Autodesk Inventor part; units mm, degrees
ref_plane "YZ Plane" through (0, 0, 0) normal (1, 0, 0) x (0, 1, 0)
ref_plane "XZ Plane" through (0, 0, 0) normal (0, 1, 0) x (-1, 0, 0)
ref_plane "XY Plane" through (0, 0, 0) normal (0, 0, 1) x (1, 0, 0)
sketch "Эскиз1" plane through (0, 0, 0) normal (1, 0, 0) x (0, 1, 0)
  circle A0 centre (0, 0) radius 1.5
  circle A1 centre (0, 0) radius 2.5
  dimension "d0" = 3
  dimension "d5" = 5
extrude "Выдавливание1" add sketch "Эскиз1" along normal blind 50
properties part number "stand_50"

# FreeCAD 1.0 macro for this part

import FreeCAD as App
import Part
import Sketcher
from FreeCAD import Vector

doc = App.newDocument("Part")
body = doc.addObject("PartDesign::Body", "Body")

# Sketch on YZ plane
sketch1 = doc.addObject("Sketcher::SketchObject", "Sketch")
body.addObject(sketch1)
sketch1.AttachmentSupport = (doc.YZ_Plane, [""])
sketch1.MapMode = "FlatFace"
sketch1.addGeometry([
    Part.Circle(Vector(0, 0, 0), Vector(0, 0, 1), 2.5),
    Part.Circle(Vector(0, 0, 0), Vector(0, 0, 1), 1.5),
], False)
sketch1.addConstraint([
    Sketcher.Constraint("Coincident", 0, 3, -1, 1),
    Sketcher.Constraint("Coincident", 1, 3, -1, 1),
    Sketcher.Constraint("Diameter", 0, 5.0),
    Sketcher.Constraint("Diameter", 1, 3.0),
])
pad1 = doc.addObject("PartDesign::Pad", "Pad")
body.addObject(pad1)
pad1.Profile = sketch1
pad1.Length = 50

doc.recompute()
